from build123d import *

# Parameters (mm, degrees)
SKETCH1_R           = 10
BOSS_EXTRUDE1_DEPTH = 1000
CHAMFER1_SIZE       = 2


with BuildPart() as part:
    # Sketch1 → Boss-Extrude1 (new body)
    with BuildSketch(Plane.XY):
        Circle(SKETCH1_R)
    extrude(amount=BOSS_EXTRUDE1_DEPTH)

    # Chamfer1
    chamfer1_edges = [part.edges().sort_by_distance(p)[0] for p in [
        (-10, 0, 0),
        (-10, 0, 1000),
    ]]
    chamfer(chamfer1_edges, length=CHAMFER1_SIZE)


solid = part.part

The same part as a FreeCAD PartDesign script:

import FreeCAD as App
import Part
import Sketcher
from FreeCAD import Vector
Q = App.Units.Quantity


def edges_at(feature, points):
    """Names of the edges that pass closest to the given points."""
    edges = feature.Shape.Edges
    near = lambda p: min(range(len(edges)), key=lambda i: edges[i].distToShape(Part.Vertex(*p))[0])
    return sorted({f"Edge{near(p) + 1}" for p in points})

doc = App.newDocument("Part")
body = doc.addObject("PartDesign::Body", "Body")

sketch1 = doc.addObject("Sketcher::SketchObject", "Sketch")
body.addObject(sketch1)
sketch1.AttachmentSupport = (doc.XY_Plane, [""])
sketch1.MapMode = "FlatFace"
sketch1.addGeometry(Part.Circle(Vector(0, 0, 0), Vector(0, 0, 1), 10), False)
sketch1.addConstraint(Sketcher.Constraint("Coincident", 0, 3, -1, 1))
sketch1.addConstraint(Sketcher.Constraint("Diameter", 0, Q("20 mm")))
pad1 = doc.addObject("PartDesign::Pad", "Pad")
body.addObject(pad1)
pad1.Profile = sketch1
pad1.Length = 1000
doc.recompute()

chamfer = doc.addObject("PartDesign::Chamfer", "Chamfer")
body.addObject(chamfer)
chamfer.Base = (pad1, edges_at(pad1, [(-10, 0, 0), (-10, 0, 1000)]))
chamfer.Size = 2

doc.recompute()
